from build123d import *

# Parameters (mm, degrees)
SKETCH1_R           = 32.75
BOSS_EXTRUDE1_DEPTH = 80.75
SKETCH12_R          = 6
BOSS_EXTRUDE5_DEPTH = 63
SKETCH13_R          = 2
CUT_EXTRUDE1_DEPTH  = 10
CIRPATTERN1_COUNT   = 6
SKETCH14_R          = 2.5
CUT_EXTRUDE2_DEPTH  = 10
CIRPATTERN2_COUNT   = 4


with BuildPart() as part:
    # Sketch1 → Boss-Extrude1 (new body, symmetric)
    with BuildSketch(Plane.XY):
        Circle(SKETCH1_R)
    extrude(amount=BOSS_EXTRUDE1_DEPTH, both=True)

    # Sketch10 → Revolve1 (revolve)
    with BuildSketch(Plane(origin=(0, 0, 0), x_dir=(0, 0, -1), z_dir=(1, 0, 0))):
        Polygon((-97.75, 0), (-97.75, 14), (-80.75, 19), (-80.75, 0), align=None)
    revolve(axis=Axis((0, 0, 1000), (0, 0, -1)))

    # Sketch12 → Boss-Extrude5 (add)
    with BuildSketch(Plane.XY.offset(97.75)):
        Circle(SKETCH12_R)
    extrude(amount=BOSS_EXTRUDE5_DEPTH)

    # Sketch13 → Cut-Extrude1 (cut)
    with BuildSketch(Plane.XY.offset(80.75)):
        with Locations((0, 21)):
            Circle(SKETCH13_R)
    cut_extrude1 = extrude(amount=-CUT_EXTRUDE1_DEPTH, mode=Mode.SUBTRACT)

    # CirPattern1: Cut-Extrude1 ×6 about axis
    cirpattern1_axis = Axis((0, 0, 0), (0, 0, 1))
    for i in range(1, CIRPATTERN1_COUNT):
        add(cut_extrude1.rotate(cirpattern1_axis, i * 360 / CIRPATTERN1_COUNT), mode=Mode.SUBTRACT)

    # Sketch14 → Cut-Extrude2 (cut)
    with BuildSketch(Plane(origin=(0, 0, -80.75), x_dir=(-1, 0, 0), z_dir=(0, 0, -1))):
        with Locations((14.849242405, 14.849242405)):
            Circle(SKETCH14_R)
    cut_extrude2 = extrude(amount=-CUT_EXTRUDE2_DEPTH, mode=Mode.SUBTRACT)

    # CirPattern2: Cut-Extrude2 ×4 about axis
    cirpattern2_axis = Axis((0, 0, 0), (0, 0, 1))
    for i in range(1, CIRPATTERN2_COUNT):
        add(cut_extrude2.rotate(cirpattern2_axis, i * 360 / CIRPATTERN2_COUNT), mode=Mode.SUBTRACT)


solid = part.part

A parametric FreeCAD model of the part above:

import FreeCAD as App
import Part
import Sketcher

V = App.Vector
Q = App.Units.Quantity


def add_polygon(sketch, points):
    """Adds a closed chain of lines whose ends are joined by coincident constraints."""
    first, n = sketch.GeometryCount, len(points)
    for a, b in zip(points, points[1:] + points[:1]):
        sketch.addGeometry(Part.LineSegment(App.Vector(*a, 0), App.Vector(*b, 0)), False)
    for i in range(n):
        sketch.addConstraint(Sketcher.Constraint("Coincident", first + i, 2, first + (i + 1) % n, 1))

doc = App.newDocument("Part")
body = doc.addObject("PartDesign::Body", "Body")

# Sketch on XY plane
sketch1 = body.newObject("Sketcher::SketchObject", "Sketch")
sketch1.AttachmentSupport = (doc.getObject("XY_Plane"), [""])
sketch1.MapMode = "FlatFace"
sketch1.addGeometry(Part.Circle(V(0, 0, 0), V(0, 0, 1), 33), False)
sketch1.addConstraint([
    Sketcher.Constraint("Coincident", 0, 3, -1, 1),
    Sketcher.Constraint("Diameter", 0, Q("65.5 mm")),
])
pad1 = body.newObject("PartDesign::Pad", "Pad")
pad1.Profile = sketch1
pad1.Length = 161.5
pad1.Midplane = True

# Sketch on YZ plane
sketch2 = body.newObject("Sketcher::SketchObject", "Sketch001")
sketch2.AttachmentSupport = (doc.getObject("YZ_Plane"), [""])
sketch2.MapMode = "FlatFace"
add_polygon(sketch2, [(14, 98), (0, 98), (0, 81), (19, 81)])  # lines 0-3
sketch2.addConstraint([
    Sketcher.Constraint("Horizontal", 0),
    Sketcher.Constraint("Vertical", 1),
    Sketcher.Constraint("Horizontal", 2),
    Sketcher.Constraint("PointOnObject", 0, 2, -2),
    Sketcher.Constraint("DistanceX", 0, 2, 0, 1, Q("14 mm")),
    Sketcher.Constraint("DistanceX", 2, 1, 2, 2, Q("19 mm")),
    Sketcher.Constraint("DistanceY", 1, 2, 1, 1, Q("17 mm")),
    Sketcher.Constraint("DistanceY", -1, 1, 0, 2, Q("97.75 mm")),
])
revolution = body.newObject("PartDesign::Revolution", "Revolution")
revolution.Profile = sketch2
revolution.ReferenceAxis = (sketch2, ["V_Axis"])
revolution.Angle = 360

# Sketch on XY plane
sketch3 = body.newObject("Sketcher::SketchObject", "Sketch002")
sketch3.AttachmentSupport = (doc.getObject("XY_Plane"), [""])
sketch3.MapMode = "FlatFace"
sketch3.AttachmentOffset = App.Placement(V(0, 0, 97.75), App.Rotation())
sketch3.addGeometry(Part.Circle(V(0, 0, 0), V(0, 0, 1), 6), False)
sketch3.addConstraint([
    Sketcher.Constraint("Coincident", 0, 3, -1, 1),
    Sketcher.Constraint("Diameter", 0, Q("12 mm")),
])
pad2 = body.newObject("PartDesign::Pad", "Pad001")
pad2.Profile = sketch3
pad2.Length = 63

# Sketch on XY plane
sketch4 = body.newObject("Sketcher::SketchObject", "Sketch003")
sketch4.AttachmentSupport = (doc.getObject("XY_Plane"), [""])
sketch4.MapMode = "FlatFace"
sketch4.AttachmentOffset = App.Placement(V(0, 0, 80.75), App.Rotation())
sketch4.addGeometry(Part.Circle(V(0, 21, 0), V(0, 0, 1), 2), False)
sketch4.addConstraint([
    Sketcher.Constraint("PointOnObject", 0, 3, -2),
    Sketcher.Constraint("Diameter", 0, Q("4 mm")),
    Sketcher.Constraint("DistanceY", -1, 1, 0, 3, Q("21 mm")),
])
pocket1 = body.newObject("PartDesign::Pocket", "Pocket")
pocket1.Profile = sketch4
pocket1.Length = 10
doc.recompute()

polarpattern = body.newObject("PartDesign::PolarPattern", "PolarPattern")
polarpattern.Originals = [pocket1]
polarpattern.Axis = (doc.getObject("Z_Axis"), [""])
polarpattern.Angle = 360
polarpattern.Occurrences = 6
body.Tip = polarpattern

# Sketch on XY plane
sketch5 = body.newObject("Sketcher::SketchObject", "Sketch004")
sketch5.AttachmentSupport = (doc.getObject("XY_Plane"), [""])
sketch5.MapMode = "FlatFace"
sketch5.AttachmentOffset = App.Placement(V(0, 0, -80.75), App.Rotation())
sketch5.addGeometry(Part.Circle(V(-14.8, 14.8, 0), V(0, 0, 1), 2.5), False)
sketch5.addConstraint([
    Sketcher.Constraint("Diameter", 0, Q("5 mm")),
    Sketcher.Constraint("DistanceX", 0, 3, -1, 1, Q("14.849242 mm")),
    Sketcher.Constraint("DistanceY", -1, 1, 0, 3, Q("14.849242 mm")),
])
pocket2 = body.newObject("PartDesign::Pocket", "Pocket001")
pocket2.Profile = sketch5
pocket2.Length = 10
pocket2.Reversed = True
doc.recompute()

polarpattern2 = body.newObject("PartDesign::PolarPattern", "PolarPattern001")
polarpattern2.Originals = [pocket2]
polarpattern2.Axis = (doc.getObject("Z_Axis"), [""])
polarpattern2.Angle = 360
polarpattern2.Occurrences = 4
body.Tip = polarpattern2

doc.recompute()
